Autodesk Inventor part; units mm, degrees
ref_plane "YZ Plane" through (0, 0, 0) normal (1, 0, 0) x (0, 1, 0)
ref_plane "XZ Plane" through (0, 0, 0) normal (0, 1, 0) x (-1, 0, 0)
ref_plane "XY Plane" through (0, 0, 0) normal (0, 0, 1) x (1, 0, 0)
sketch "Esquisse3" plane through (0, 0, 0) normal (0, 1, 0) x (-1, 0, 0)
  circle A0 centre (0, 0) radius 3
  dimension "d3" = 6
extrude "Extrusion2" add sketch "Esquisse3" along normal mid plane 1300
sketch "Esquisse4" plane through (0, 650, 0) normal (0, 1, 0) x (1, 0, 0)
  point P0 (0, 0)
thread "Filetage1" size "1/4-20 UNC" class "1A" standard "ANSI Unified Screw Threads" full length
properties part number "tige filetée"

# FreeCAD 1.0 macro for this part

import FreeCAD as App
import Part
import Sketcher

doc = App.newDocument("Part")
body = doc.addObject("PartDesign::Body", "Body")

# Sketch on XZ plane
sketch1 = body.newObject("Sketcher::SketchObject", "Sketch")
sketch1.AttachmentSupport = (doc.getObject("XZ_Plane"), [""])
sketch1.MapMode = "FlatFace"
sketch1.addGeometry(Part.Circle(App.Vector(0, 0, 0), App.Vector(0, 0, 1), 3), False)
sketch1.addConstraint([
    Sketcher.Constraint("Coincident", 0, 3, -1, 1),
    Sketcher.Constraint("Diameter", 0, 6.0),
])
pad1 = body.newObject("PartDesign::Pad", "Pad")
pad1.Profile = sketch1
pad1.Length = 1300
pad1.Midplane = True

doc.recompute()
